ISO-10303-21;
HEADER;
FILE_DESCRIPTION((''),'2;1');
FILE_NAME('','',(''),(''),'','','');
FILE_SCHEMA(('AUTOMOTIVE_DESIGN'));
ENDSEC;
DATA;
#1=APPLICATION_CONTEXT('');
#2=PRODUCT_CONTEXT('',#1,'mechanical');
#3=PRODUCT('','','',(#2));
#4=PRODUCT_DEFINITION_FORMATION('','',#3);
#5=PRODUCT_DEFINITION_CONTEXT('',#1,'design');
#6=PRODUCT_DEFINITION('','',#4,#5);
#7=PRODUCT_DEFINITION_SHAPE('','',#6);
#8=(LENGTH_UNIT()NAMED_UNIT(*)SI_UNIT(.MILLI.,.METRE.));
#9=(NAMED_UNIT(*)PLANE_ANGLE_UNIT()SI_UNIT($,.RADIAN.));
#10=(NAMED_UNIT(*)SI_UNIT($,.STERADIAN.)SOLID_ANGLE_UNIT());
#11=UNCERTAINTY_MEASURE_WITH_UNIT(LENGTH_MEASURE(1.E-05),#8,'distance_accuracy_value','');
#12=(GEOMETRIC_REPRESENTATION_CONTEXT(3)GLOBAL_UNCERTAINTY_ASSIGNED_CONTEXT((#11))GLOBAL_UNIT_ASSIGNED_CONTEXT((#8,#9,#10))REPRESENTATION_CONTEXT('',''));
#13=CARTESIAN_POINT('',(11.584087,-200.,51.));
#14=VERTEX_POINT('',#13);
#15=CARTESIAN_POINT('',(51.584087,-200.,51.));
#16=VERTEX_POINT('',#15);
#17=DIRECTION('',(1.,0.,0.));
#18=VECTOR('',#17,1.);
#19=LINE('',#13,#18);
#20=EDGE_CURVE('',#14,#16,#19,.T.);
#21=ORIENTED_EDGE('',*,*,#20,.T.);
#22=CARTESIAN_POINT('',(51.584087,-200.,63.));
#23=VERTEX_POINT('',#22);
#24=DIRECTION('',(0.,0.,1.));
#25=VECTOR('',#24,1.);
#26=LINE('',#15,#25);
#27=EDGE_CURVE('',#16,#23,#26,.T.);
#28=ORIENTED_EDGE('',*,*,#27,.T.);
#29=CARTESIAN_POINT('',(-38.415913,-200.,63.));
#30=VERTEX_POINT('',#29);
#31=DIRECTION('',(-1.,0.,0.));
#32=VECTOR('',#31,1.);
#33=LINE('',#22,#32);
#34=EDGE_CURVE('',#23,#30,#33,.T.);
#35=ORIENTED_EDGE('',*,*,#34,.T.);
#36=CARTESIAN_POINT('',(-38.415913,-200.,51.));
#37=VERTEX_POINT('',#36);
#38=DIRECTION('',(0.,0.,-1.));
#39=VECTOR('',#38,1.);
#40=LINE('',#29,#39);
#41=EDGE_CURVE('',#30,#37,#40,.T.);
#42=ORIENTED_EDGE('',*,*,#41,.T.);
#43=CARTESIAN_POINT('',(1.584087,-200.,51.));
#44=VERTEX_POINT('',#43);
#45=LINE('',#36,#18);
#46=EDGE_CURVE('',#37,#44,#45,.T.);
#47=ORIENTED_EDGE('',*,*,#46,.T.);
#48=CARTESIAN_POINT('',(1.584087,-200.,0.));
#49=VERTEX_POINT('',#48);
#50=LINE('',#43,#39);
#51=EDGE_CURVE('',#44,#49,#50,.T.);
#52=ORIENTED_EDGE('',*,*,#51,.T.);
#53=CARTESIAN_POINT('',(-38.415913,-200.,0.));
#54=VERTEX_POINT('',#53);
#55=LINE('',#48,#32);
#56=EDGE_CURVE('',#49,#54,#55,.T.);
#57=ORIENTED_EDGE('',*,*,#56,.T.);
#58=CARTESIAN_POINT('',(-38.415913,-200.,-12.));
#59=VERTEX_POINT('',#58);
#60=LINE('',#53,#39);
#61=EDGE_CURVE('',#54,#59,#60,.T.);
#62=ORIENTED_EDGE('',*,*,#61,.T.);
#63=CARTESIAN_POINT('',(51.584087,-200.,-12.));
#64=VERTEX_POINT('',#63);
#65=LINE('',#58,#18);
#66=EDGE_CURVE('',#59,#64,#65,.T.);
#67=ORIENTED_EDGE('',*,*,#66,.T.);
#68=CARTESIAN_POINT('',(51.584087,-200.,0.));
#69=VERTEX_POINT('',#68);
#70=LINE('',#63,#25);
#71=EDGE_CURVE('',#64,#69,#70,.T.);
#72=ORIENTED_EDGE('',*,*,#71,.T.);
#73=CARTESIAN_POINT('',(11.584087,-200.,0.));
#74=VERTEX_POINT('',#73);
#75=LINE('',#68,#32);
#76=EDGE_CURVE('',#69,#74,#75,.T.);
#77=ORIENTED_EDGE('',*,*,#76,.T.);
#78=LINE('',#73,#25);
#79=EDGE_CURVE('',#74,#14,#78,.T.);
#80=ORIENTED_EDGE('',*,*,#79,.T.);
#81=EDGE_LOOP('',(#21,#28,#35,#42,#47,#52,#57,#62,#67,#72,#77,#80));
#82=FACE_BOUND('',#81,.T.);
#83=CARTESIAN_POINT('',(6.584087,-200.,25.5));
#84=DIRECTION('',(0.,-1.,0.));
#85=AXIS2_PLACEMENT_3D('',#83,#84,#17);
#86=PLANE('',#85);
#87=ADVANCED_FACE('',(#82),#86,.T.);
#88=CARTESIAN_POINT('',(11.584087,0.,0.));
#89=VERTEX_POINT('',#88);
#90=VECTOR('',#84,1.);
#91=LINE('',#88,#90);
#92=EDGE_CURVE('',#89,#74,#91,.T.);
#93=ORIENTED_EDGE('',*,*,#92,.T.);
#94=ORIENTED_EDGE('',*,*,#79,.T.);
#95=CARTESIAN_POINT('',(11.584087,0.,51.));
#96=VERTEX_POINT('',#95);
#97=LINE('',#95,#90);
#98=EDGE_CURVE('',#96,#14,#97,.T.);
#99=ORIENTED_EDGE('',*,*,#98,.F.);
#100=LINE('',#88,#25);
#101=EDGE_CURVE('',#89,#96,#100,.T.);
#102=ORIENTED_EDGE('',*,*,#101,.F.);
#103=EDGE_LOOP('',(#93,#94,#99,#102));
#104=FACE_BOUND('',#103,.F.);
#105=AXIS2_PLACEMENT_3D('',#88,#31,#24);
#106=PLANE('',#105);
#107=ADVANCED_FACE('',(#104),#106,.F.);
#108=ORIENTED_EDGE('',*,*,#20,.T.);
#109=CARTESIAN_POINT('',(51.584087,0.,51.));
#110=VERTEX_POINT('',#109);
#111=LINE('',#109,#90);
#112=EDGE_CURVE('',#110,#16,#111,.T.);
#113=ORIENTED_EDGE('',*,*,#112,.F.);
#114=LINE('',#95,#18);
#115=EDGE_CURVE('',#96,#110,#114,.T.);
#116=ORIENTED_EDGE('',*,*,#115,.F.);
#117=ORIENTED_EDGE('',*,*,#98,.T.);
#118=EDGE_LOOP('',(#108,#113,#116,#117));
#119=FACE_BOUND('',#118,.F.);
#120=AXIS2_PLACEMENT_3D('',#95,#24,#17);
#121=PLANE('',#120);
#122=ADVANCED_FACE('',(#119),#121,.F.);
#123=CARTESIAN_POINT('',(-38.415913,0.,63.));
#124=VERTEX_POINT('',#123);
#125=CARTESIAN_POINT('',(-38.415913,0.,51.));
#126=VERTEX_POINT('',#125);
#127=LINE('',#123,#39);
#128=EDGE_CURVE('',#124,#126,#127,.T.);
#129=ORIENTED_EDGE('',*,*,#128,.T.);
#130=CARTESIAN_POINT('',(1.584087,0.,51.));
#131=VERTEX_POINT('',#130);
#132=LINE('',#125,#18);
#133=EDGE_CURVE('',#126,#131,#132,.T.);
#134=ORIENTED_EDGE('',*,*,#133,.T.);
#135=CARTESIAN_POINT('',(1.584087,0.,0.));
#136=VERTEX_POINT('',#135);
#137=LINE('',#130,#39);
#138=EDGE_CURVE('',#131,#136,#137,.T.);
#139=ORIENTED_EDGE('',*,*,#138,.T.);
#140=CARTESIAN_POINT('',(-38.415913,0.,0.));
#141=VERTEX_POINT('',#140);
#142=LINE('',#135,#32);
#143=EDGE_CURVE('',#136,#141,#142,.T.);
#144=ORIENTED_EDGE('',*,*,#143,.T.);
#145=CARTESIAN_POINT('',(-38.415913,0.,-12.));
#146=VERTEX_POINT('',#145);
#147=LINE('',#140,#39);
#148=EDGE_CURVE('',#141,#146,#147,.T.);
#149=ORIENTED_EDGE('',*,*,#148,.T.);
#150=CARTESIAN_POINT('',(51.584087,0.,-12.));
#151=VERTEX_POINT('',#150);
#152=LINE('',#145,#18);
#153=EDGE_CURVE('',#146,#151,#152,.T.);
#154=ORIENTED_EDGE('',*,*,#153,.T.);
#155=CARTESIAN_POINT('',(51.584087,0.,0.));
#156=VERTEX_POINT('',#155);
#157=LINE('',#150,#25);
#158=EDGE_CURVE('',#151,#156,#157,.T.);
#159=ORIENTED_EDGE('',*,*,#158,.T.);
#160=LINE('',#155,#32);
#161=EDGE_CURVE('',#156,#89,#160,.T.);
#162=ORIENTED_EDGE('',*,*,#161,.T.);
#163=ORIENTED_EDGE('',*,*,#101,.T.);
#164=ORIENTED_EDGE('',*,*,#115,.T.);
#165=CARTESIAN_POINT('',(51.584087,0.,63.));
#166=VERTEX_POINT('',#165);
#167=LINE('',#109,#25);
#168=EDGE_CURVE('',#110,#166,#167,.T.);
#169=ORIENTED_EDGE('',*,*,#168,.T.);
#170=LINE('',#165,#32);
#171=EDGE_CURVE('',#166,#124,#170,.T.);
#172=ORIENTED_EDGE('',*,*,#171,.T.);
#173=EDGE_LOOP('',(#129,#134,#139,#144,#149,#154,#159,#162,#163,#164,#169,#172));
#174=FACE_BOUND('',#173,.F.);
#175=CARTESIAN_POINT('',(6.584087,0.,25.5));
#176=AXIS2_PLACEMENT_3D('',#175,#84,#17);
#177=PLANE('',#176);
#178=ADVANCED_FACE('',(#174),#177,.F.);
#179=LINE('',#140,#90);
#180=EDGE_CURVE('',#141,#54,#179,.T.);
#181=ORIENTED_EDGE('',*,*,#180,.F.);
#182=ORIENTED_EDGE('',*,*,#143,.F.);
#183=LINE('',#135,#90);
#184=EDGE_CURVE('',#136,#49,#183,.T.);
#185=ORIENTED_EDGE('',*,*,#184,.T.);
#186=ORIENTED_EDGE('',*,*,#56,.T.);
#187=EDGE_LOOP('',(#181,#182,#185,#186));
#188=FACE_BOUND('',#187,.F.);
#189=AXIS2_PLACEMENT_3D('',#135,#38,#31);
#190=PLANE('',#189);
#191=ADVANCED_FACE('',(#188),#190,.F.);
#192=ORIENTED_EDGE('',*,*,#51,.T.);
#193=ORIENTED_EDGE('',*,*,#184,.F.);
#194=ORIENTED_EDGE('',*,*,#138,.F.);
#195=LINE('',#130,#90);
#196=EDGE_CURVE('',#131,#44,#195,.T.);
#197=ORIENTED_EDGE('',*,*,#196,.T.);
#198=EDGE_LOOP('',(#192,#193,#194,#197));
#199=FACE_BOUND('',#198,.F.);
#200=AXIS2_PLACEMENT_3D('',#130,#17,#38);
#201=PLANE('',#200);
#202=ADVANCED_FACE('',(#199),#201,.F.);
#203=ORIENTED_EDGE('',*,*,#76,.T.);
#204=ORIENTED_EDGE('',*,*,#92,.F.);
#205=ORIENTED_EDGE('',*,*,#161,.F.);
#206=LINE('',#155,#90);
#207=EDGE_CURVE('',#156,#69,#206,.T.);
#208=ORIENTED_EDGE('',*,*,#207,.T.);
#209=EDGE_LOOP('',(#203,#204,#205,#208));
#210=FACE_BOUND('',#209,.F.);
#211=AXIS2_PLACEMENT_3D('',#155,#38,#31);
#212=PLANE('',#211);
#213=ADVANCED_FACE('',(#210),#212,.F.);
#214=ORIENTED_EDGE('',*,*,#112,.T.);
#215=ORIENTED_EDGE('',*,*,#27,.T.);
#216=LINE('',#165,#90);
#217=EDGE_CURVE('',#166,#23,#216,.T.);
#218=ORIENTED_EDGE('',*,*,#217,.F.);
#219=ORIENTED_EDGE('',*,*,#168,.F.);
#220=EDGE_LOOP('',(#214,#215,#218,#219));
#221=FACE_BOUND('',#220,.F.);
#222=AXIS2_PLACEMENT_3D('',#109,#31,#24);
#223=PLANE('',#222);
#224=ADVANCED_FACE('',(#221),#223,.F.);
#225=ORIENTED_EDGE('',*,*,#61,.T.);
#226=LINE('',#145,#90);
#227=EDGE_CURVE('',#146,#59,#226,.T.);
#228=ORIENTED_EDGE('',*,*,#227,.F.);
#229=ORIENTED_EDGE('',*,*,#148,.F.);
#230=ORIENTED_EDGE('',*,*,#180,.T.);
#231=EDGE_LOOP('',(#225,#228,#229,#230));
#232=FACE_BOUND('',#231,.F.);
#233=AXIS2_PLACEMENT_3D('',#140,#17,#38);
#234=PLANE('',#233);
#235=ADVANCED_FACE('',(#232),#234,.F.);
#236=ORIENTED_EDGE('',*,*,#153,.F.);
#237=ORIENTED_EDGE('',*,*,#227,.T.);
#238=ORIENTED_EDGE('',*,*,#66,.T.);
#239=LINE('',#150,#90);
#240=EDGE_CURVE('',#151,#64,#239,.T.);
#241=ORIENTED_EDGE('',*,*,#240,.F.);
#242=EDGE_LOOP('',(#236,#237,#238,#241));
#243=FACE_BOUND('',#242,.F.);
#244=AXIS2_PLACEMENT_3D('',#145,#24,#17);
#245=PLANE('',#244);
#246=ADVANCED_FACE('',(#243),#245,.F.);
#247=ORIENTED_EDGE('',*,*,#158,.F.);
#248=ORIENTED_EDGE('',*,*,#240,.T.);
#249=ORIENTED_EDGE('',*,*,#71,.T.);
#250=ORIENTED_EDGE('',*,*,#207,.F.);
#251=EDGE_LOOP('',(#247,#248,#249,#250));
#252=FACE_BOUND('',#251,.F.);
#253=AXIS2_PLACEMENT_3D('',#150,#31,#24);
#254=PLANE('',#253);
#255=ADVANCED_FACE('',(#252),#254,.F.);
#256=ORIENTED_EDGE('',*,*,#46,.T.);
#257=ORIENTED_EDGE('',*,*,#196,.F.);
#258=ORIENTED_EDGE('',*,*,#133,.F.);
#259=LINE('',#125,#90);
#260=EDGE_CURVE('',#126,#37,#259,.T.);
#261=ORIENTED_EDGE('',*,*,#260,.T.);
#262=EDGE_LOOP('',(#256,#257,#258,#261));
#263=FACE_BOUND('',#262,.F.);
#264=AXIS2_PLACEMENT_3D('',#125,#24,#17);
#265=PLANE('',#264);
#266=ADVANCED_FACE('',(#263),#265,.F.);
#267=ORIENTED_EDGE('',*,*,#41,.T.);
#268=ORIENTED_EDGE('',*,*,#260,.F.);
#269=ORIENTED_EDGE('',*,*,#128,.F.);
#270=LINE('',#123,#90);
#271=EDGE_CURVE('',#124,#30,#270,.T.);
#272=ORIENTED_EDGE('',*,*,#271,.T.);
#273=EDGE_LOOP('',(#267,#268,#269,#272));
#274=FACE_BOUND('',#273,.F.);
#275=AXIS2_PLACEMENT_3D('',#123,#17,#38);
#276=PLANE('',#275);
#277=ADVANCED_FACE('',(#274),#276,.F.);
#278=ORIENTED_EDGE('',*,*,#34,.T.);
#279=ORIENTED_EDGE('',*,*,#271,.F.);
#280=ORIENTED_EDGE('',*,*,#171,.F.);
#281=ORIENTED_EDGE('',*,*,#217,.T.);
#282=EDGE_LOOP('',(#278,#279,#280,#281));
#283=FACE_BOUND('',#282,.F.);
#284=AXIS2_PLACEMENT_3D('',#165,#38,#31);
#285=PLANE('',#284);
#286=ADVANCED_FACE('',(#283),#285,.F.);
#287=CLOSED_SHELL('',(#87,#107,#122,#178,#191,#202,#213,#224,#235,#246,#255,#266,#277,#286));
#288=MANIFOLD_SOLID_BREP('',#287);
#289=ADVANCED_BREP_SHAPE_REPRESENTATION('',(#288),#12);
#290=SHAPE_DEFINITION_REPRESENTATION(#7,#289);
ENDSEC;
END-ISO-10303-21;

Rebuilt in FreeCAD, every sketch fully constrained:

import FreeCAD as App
import Part
import Sketcher
from FreeCAD import Vector
Q = App.Units.Quantity

doc = App.newDocument("Part")
body = doc.addObject("PartDesign::Body", "Body")

# Sketch on XZ plane
sketch1 = body.newObject("Sketcher::SketchObject", "Sketch")
sketch1.AttachmentSupport = (doc.getObject("XZ_Plane"), [""])
sketch1.MapMode = "FlatFace"
sketch1.addGeometry([
    Part.LineSegment(Vector(-38, 63, 0), Vector(-38, 51, 0)),  # 0
    Part.LineSegment(Vector(-38, 51, 0), Vector(2, 51, 0)),  # 1
    Part.LineSegment(Vector(2, 51, 0), Vector(2, 0, 0)),  # 2
    Part.LineSegment(Vector(2, 0, 0), Vector(-38, 0, 0)),  # 3
    Part.LineSegment(Vector(-38, 0, 0), Vector(-38, -12, 0)),  # 4
    Part.LineSegment(Vector(-38, -12, 0), Vector(52, -12, 0)),  # 5
    Part.LineSegment(Vector(52, -12, 0), Vector(52, 0, 0)),  # 6
    Part.LineSegment(Vector(52, 0, 0), Vector(12, 0, 0)),  # 7
    Part.LineSegment(Vector(12, 0, 0), Vector(12, 51, 0)),  # 8
    Part.LineSegment(Vector(12, 51, 0), Vector(52, 51, 0)),  # 9
    Part.LineSegment(Vector(52, 51, 0), Vector(52, 63, 0)),  # 10
    Part.LineSegment(Vector(52, 63, 0), Vector(-38, 63, 0)),  # 11
], False)
sketch1.addConstraint([
    Sketcher.Constraint("Coincident", 0, 2, 1, 1),
    Sketcher.Constraint("Coincident", 1, 2, 2, 1),
    Sketcher.Constraint("Coincident", 2, 2, 3, 1),
    Sketcher.Constraint("Coincident", 3, 2, 4, 1),
    Sketcher.Constraint("Coincident", 4, 2, 5, 1),
    Sketcher.Constraint("Coincident", 5, 2, 6, 1),
    Sketcher.Constraint("Coincident", 6, 2, 7, 1),
    Sketcher.Constraint("Coincident", 7, 2, 8, 1),
    Sketcher.Constraint("Coincident", 8, 2, 9, 1),
    Sketcher.Constraint("Coincident", 9, 2, 10, 1),
    Sketcher.Constraint("Coincident", 10, 2, 11, 1),
    Sketcher.Constraint("Coincident", 11, 2, 0, 1),
    Sketcher.Constraint("Vertical", 0),
    Sketcher.Constraint("Horizontal", 1),
    Sketcher.Constraint("Vertical", 2),
    Sketcher.Constraint("Horizontal", 3),
    Sketcher.Constraint("Vertical", 4),
    Sketcher.Constraint("Horizontal", 5),
    Sketcher.Constraint("Vertical", 6),
    Sketcher.Constraint("Horizontal", 7),
    Sketcher.Constraint("Vertical", 8),
    Sketcher.Constraint("Horizontal", 9),
    Sketcher.Constraint("Vertical", 10),
    Sketcher.Constraint("Horizontal", 11),
    Sketcher.Constraint("PointOnObject", 2, 2, -1),
    Sketcher.Constraint("PointOnObject", 6, 2, -1),
    Sketcher.Constraint("Horizontal", 1, 2, 8, 2),
    Sketcher.Constraint("Vertical", 0, 2, 3, 2),
    Sketcher.Constraint("Vertical", 6, 2, 9, 2),
    Sketcher.Constraint("Equal", 3, 7),
    Sketcher.Constraint("Equal", 0, 4),
    Sketcher.Constraint("DistanceX", 1, 1, 1, 2, Q("40 mm")),
    Sketcher.Constraint("DistanceX", 5, 1, 5, 2, Q("90 mm")),
    Sketcher.Constraint("DistanceY", 0, 2, 0, 1, Q("12 mm")),
    Sketcher.Constraint("DistanceY", 2, 2, 2, 1, Q("51 mm")),
    Sketcher.Constraint("DistanceX", 0, 2, -1, 1, Q("38.415913 mm")),
])
pad1 = body.newObject("PartDesign::Pad", "Pad")
pad1.Profile = sketch1
pad1.Length = 200

doc.recompute()
